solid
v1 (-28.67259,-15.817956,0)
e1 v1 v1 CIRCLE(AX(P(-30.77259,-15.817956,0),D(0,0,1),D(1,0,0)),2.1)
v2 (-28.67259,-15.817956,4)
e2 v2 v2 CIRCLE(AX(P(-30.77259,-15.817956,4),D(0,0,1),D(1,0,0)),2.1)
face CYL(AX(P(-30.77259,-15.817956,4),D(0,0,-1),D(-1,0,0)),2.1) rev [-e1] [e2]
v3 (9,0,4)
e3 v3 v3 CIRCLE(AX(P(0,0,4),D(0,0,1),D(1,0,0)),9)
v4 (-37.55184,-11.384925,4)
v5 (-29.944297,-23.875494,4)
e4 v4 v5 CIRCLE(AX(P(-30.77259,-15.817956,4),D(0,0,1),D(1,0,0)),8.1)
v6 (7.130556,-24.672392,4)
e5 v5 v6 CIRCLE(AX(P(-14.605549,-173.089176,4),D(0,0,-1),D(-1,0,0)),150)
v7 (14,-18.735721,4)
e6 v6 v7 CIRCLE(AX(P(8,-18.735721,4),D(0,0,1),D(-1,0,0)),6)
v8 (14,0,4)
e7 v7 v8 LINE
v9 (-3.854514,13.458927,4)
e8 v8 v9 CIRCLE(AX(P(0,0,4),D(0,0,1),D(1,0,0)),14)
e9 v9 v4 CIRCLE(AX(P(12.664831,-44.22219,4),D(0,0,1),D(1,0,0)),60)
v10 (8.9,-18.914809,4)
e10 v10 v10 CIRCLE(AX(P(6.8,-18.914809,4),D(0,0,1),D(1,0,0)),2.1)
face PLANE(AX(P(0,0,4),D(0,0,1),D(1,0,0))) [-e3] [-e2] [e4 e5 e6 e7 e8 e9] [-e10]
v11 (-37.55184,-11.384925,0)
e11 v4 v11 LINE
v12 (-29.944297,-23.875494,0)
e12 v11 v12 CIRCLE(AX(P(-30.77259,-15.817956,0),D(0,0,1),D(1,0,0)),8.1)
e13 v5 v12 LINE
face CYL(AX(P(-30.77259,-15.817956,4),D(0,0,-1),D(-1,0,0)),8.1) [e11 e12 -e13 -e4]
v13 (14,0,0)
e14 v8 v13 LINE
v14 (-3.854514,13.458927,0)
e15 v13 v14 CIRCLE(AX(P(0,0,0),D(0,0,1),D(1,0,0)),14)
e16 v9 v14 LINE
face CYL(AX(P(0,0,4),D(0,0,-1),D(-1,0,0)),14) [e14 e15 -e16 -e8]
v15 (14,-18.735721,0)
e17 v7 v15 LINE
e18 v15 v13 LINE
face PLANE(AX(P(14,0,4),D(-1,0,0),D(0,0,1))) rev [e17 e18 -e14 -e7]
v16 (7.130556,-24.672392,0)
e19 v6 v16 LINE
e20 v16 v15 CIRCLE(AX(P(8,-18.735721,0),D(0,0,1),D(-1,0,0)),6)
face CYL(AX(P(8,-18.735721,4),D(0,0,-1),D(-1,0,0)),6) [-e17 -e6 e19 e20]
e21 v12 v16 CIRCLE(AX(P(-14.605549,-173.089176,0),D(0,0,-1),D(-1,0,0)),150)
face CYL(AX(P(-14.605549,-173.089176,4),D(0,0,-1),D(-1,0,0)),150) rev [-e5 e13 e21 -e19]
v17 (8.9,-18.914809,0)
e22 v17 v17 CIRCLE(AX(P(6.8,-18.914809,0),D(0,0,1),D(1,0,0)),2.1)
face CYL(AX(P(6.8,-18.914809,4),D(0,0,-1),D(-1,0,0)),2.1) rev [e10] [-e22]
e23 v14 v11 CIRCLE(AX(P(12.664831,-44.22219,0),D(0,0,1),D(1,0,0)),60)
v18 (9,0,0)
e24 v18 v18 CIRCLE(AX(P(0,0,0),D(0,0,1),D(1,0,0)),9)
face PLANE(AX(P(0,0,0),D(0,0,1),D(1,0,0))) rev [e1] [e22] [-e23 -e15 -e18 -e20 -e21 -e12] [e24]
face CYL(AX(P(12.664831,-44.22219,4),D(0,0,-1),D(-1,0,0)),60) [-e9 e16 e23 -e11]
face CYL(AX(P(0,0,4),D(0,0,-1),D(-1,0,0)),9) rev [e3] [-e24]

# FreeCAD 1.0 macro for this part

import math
import FreeCAD as App
import Part
import Sketcher
from FreeCAD import Vector
Q = App.Units.Quantity

doc = App.newDocument("Part")
params = doc.addObject("Spreadsheet::Sheet", "Params")
for row, (alias, value) in enumerate([
    ("sketch1_diameter", "18 mm"),
    ("sketch1_radius", "14 mm"),
    ("sketch1_radius2", "60 mm"),
    ("sketch1_radius3", "150 mm"),
    ("sketch1_radius4", "6 mm"),
    ("pad1_length", "4 mm"),
], start=1):
    params.set(f"A{row}", alias)
    params.set(f"B{row}", "=" + value)
    params.setAlias(f"B{row}", alias)

body = doc.addObject("PartDesign::Body", "Body")

sketch1 = body.newObject("Sketcher::SketchObject", "Sketch")
sketch1.AttachmentSupport = (doc.getObject("XY_Plane"), [""])
sketch1.MapMode = "FlatFace"
sketch1.addGeometry([
    Part.LineSegment(Vector(14, -18.7, 0), Vector(14, 0, 0)),
    Part.ArcOfCircle(Part.Circle(Vector(0, 0, 0), Vector(0, 0, 1), 14), math.radians(0), math.radians(106)),
    Part.ArcOfCircle(Part.Circle(Vector(12.7, -44.2, 0), Vector(0, 0, 1), 60), math.radians(106), math.radians(147)),
    Part.ArcOfCircle(Part.Circle(Vector(-30.8, -15.8, 0), Vector(0, 0, 1), 8.1), math.radians(147), math.radians(276)),
    Part.ArcOfCircle(Part.Circle(Vector(-14.6, -173.1, 0), Vector(0, 0, 1), 150), math.radians(81.67), math.radians(95.87)),
    Part.ArcOfCircle(Part.Circle(Vector(8, -18.7, 0), Vector(0, 0, 1), 6), math.radians(-98), math.radians(0)),
    Part.Circle(Vector(6.8, -18.9, 0), Vector(0, 0, 1), 2.1),
    Part.Circle(Vector(-30.8, -15.8, 0), Vector(0, 0, 1), 2.1),
    Part.Circle(Vector(0, 0, 0), Vector(0, 0, 1), 9),
], False)
sketch1.addConstraint([
    Sketcher.Constraint("Tangent", 0, 2, 1, 1),
    Sketcher.Constraint("Tangent", 1, 2, 2, 1),
    Sketcher.Constraint("Tangent", 2, 2, 3, 1),
    Sketcher.Constraint("Tangent", 3, 2, 4, 2),
    Sketcher.Constraint("Tangent", 4, 1, 5, 1),
    Sketcher.Constraint("Tangent", 5, 2, 0, 1),
    Sketcher.Constraint("Vertical", 0),
    Sketcher.Constraint("Coincident", 1, 3, -1, 1),
    Sketcher.Constraint("Coincident", 8, 3, -1, 1),
    Sketcher.Constraint("Coincident", 7, 3, 3, 3),
    Sketcher.Constraint("Equal", 6, 7),
    Sketcher.Constraint("Diameter", 8, Q("18 mm")),
    Sketcher.Constraint("Radius", 1, Q("14 mm")),
    Sketcher.Constraint("Radius", 2, Q("60 mm")),
    Sketcher.Constraint("Radius", 4, Q("150 mm")),
    Sketcher.Constraint("Radius", 5, Q("6 mm")),
    Sketcher.Constraint("Diameter", 6, Q("4.2 mm")),
    Sketcher.Constraint("Radius", 3, Q("8.1 mm")),
    Sketcher.Constraint("DistanceX", -1, 1, 6, 3, Q("6.8 mm")),
    Sketcher.Constraint("DistanceY", 0, 1, 0, 2, Q("18.735721 mm")),
    Sketcher.Constraint("DistanceX", -1, 1, 2, 3, Q("12.664831 mm")),
    Sketcher.Constraint("DistanceX", 3, 3, -1, 1, Q("30.77259 mm")),
    Sketcher.Constraint("DistanceY", 6, 3, -1, 1, Q("18.914809 mm")),
])
sketch1.setExpression("Constraints[11]", "Params.sketch1_diameter")
sketch1.setExpression("Constraints[12]", "Params.sketch1_radius")
sketch1.setExpression("Constraints[13]", "Params.sketch1_radius2")
sketch1.setExpression("Constraints[14]", "Params.sketch1_radius3")
sketch1.setExpression("Constraints[15]", "Params.sketch1_radius4")
pad1 = body.newObject("PartDesign::Pad", "Pad")
pad1.Profile = sketch1
pad1.setExpression("Length", "Params.pad1_length")

doc.recompute()
